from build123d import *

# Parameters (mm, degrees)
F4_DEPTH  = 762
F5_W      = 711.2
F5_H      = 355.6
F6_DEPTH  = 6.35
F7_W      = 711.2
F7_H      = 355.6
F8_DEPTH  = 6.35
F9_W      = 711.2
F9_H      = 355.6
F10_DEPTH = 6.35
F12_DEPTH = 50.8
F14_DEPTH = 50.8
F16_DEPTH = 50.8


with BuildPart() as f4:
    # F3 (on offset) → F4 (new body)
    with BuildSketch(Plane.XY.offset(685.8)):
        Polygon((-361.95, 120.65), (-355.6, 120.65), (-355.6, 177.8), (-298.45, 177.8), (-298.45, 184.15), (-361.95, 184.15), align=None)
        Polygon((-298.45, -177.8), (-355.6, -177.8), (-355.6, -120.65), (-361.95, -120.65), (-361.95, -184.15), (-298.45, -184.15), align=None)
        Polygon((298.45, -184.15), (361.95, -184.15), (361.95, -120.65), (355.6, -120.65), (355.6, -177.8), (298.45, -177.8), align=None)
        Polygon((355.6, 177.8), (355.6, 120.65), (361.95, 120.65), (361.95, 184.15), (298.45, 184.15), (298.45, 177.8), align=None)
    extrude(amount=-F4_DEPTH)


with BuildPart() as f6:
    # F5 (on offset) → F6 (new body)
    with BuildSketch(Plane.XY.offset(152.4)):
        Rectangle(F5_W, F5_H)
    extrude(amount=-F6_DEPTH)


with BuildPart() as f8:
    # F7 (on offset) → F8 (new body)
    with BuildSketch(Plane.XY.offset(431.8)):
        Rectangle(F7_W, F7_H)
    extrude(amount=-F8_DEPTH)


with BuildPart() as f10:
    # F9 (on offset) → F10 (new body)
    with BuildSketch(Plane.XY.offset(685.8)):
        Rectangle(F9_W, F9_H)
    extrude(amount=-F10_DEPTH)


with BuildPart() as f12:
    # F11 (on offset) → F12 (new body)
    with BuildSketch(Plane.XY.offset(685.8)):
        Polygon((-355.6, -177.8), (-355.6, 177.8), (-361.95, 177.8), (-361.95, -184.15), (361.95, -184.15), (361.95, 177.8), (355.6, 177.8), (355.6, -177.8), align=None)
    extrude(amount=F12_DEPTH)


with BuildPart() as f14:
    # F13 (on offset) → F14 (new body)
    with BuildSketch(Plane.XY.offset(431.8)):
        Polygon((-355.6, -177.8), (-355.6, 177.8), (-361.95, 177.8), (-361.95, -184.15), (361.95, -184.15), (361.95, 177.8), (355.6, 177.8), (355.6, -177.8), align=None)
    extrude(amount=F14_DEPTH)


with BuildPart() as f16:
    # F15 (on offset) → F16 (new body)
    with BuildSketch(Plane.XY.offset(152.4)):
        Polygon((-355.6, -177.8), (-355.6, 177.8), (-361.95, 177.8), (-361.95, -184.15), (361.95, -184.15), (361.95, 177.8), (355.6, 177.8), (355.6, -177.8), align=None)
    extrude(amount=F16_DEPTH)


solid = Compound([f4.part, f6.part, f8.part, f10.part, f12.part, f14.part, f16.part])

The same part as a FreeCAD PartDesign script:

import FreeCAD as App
import Part
import Sketcher

V = App.Vector
Q = App.Units.Quantity

doc = App.newDocument("Part")
body = doc.addObject("PartDesign::Body", "Body")
body.AllowCompound = True

# Sketch on XY plane
sketch1 = body.newObject("Sketcher::SketchObject", "Sketch")
sketch1.AttachmentSupport = (doc.getObject("XY_Plane"), [""])
sketch1.MapMode = "FlatFace"
sketch1.AttachmentOffset = App.Placement(V(0, 0, 27 * 25.4), App.Rotation())
sketch1.addGeometry([
    Part.LineSegment(V(-362, 121, 0), V(-356, 121, 0)),  # 0
    Part.LineSegment(V(-356, 121, 0), V(-356, 178, 0)),  # 1
    Part.LineSegment(V(-356, 178, 0), V(-298, 178, 0)),  # 2
    Part.LineSegment(V(-298, 178, 0), V(-298, 184, 0)),  # 3
    Part.LineSegment(V(-298, 184, 0), V(-362, 184, 0)),  # 4
    Part.LineSegment(V(-362, 184, 0), V(-362, 121, 0)),  # 5
    Part.LineSegment(V(-298, -178, 0), V(-356, -178, 0)),  # 6
    Part.LineSegment(V(-356, -178, 0), V(-356, -121, 0)),  # 7
    Part.LineSegment(V(-356, -121, 0), V(-362, -121, 0)),  # 8
    Part.LineSegment(V(-362, -121, 0), V(-362, -184, 0)),  # 9
    Part.LineSegment(V(-362, -184, 0), V(-298, -184, 0)),  # 10
    Part.LineSegment(V(-298, -184, 0), V(-298, -178, 0)),  # 11
    Part.LineSegment(V(298, -184, 0), V(362, -184, 0)),  # 12
    Part.LineSegment(V(362, -184, 0), V(362, -121, 0)),  # 13
    Part.LineSegment(V(362, -121, 0), V(356, -121, 0)),  # 14
    Part.LineSegment(V(356, -121, 0), V(356, -178, 0)),  # 15
    Part.LineSegment(V(356, -178, 0), V(298, -178, 0)),  # 16
    Part.LineSegment(V(298, -178, 0), V(298, -184, 0)),  # 17
    Part.LineSegment(V(356, 178, 0), V(356, 121, 0)),  # 18
    Part.LineSegment(V(356, 121, 0), V(362, 121, 0)),  # 19
    Part.LineSegment(V(362, 121, 0), V(362, 184, 0)),  # 20
    Part.LineSegment(V(362, 184, 0), V(298, 184, 0)),  # 21
    Part.LineSegment(V(298, 184, 0), V(298, 178, 0)),  # 22
    Part.LineSegment(V(298, 178, 0), V(356, 178, 0)),  # 23
], False)
sketch1.addConstraint([
    Sketcher.Constraint("Coincident", 0, 2, 1, 1),
    Sketcher.Constraint("Coincident", 1, 2, 2, 1),
    Sketcher.Constraint("Coincident", 2, 2, 3, 1),
    Sketcher.Constraint("Coincident", 3, 2, 4, 1),
    Sketcher.Constraint("Coincident", 4, 2, 5, 1),
    Sketcher.Constraint("Coincident", 5, 2, 0, 1),
    Sketcher.Constraint("Coincident", 6, 2, 7, 1),
    Sketcher.Constraint("Coincident", 7, 2, 8, 1),
    Sketcher.Constraint("Coincident", 8, 2, 9, 1),
    Sketcher.Constraint("Coincident", 9, 2, 10, 1),
    Sketcher.Constraint("Coincident", 10, 2, 11, 1),
    Sketcher.Constraint("Coincident", 11, 2, 6, 1),
    Sketcher.Constraint("Coincident", 12, 2, 13, 1),
    Sketcher.Constraint("Coincident", 13, 2, 14, 1),
    Sketcher.Constraint("Coincident", 14, 2, 15, 1),
    Sketcher.Constraint("Coincident", 15, 2, 16, 1),
    Sketcher.Constraint("Coincident", 16, 2, 17, 1),
    Sketcher.Constraint("Coincident", 17, 2, 12, 1),
    Sketcher.Constraint("Coincident", 18, 2, 19, 1),
    Sketcher.Constraint("Coincident", 19, 2, 20, 1),
    Sketcher.Constraint("Coincident", 20, 2, 21, 1),
    Sketcher.Constraint("Coincident", 21, 2, 22, 1),
    Sketcher.Constraint("Coincident", 22, 2, 23, 1),
    Sketcher.Constraint("Coincident", 23, 2, 18, 1),
    Sketcher.Constraint("Horizontal", 0),
    Sketcher.Constraint("Vertical", 1),
    Sketcher.Constraint("Horizontal", 2),
    Sketcher.Constraint("Vertical", 3),
    Sketcher.Constraint("Horizontal", 4),
    Sketcher.Constraint("Vertical", 5),
    Sketcher.Constraint("Horizontal", 6),
    Sketcher.Constraint("Vertical", 7),
    Sketcher.Constraint("Horizontal", 8),
    Sketcher.Constraint("Vertical", 9),
    Sketcher.Constraint("Horizontal", 10),
    Sketcher.Constraint("Vertical", 11),
    Sketcher.Constraint("Horizontal", 12),
    Sketcher.Constraint("Vertical", 13),
    Sketcher.Constraint("Horizontal", 14),
    Sketcher.Constraint("Vertical", 15),
    Sketcher.Constraint("Horizontal", 16),
    Sketcher.Constraint("Vertical", 17),
    Sketcher.Constraint("Vertical", 18),
    Sketcher.Constraint("Horizontal", 19),
    Sketcher.Constraint("Vertical", 20),
    Sketcher.Constraint("Horizontal", 21),
    Sketcher.Constraint("Vertical", 22),
    Sketcher.Constraint("Horizontal", 23),
    Sketcher.Constraint("Symmetric", 4, 2, 12, 2, -1, 1),
    Sketcher.Constraint("Symmetric", 0, 2, 14, 2, -1, 1),
    Sketcher.Constraint("Symmetric", 2, 2, 16, 2, -1, 1),
    Sketcher.Constraint("Symmetric", 7, 2, 18, 2, -1, 1),
    Sketcher.Constraint("Symmetric", 9, 2, 20, 2, -1, 1),
    Sketcher.Constraint("Symmetric", 11, 2, 22, 2, -1, 1),
    Sketcher.Constraint("Symmetric", 9, 2, 12, 2, -2),
    Sketcher.Constraint("Symmetric", 7, 2, 14, 2, -2),
    Sketcher.Constraint("Symmetric", 11, 2, 16, 2, -2),
    Sketcher.Constraint("Equal", 23, 1),
    Sketcher.Constraint("Equal", 19, 3),
    Sketcher.Constraint("DistanceX", 4, 2, 4, 1, Q("2.5 in")),
    Sketcher.Constraint("DistanceX", 0, 2, -1, 1, Q("14 in")),
    Sketcher.Constraint("DistanceY", -1, 1, 1, 2, Q("7 in")),
    Sketcher.Constraint("DistanceY", 9, 2, 5, 2, Q("12 in")),
])
pad1 = body.newObject("PartDesign::Pad", "Pad")
pad1.Profile = sketch1
pad1.Length = Q("30 in")
pad1.Reversed = True
body2 = doc.addObject("PartDesign::Body", "Body001")

# Sketch on XY plane
sketch2 = body2.newObject("Sketcher::SketchObject", "Sketch001")
sketch2.AttachmentSupport = (doc.getObject("XY_Plane001"), [""])
sketch2.MapMode = "FlatFace"
sketch2.AttachmentOffset = App.Placement(V(0, 0, 6 * 25.4), App.Rotation())
sketch2.addGeometry([
    Part.LineSegment(V(-356, 178, 0), V(-356, -178, 0)),
    Part.LineSegment(V(-356, -178, 0), V(356, -178, 0)),
    Part.LineSegment(V(356, -178, 0), V(356, 178, 0)),
    Part.LineSegment(V(356, 178, 0), V(-356, 178, 0)),
], False)
sketch2.addConstraint([
    Sketcher.Constraint("Coincident", 0, 2, 1, 1),
    Sketcher.Constraint("Coincident", 1, 2, 2, 1),
    Sketcher.Constraint("Coincident", 2, 2, 3, 1),
    Sketcher.Constraint("Coincident", 3, 2, 0, 1),
    Sketcher.Constraint("Vertical", 0),
    Sketcher.Constraint("Horizontal", 1),
    Sketcher.Constraint("Vertical", 2),
    Sketcher.Constraint("Horizontal", 3),
    Sketcher.Constraint("Symmetric", 0, 2, 2, 2, -1, 1),
    Sketcher.Constraint("DistanceX", 1, 1, 1, 2, Q("28 in")),
    Sketcher.Constraint("DistanceY", 0, 2, 0, 1, Q("14 in")),
])
pad2 = body2.newObject("PartDesign::Pad", "Pad001")
pad2.Profile = sketch2
pad2.Length = Q("0.25 in")
pad2.Reversed = True
body3 = doc.addObject("PartDesign::Body", "Body002")

# Sketch on XY plane
sketch3 = body3.newObject("Sketcher::SketchObject", "Sketch002")
sketch3.AttachmentSupport = (doc.getObject("XY_Plane002"), [""])
sketch3.MapMode = "FlatFace"
sketch3.AttachmentOffset = App.Placement(V(0, 0, 17 * 25.4), App.Rotation())
sketch3.addGeometry([
    Part.LineSegment(V(-356, 178, 0), V(-356, -178, 0)),
    Part.LineSegment(V(-356, -178, 0), V(356, -178, 0)),
    Part.LineSegment(V(356, -178, 0), V(356, 178, 0)),
    Part.LineSegment(V(356, 178, 0), V(-356, 178, 0)),
], False)
sketch3.addConstraint([
    Sketcher.Constraint("Coincident", 0, 2, 1, 1),
    Sketcher.Constraint("Coincident", 1, 2, 2, 1),
    Sketcher.Constraint("Coincident", 2, 2, 3, 1),
    Sketcher.Constraint("Coincident", 3, 2, 0, 1),
    Sketcher.Constraint("Vertical", 0),
    Sketcher.Constraint("Horizontal", 1),
    Sketcher.Constraint("Vertical", 2),
    Sketcher.Constraint("Horizontal", 3),
    Sketcher.Constraint("Symmetric", 0, 2, 2, 2, -1, 1),
    Sketcher.Constraint("DistanceX", 1, 1, 1, 2, Q("28 in")),
    Sketcher.Constraint("DistanceY", 0, 2, 0, 1, Q("14 in")),
])
pad3 = body3.newObject("PartDesign::Pad", "Pad002")
pad3.Profile = sketch3
pad3.Length = Q("0.25 in")
pad3.Reversed = True
body4 = doc.addObject("PartDesign::Body", "Body003")

# Sketch on XY plane
sketch4 = body4.newObject("Sketcher::SketchObject", "Sketch003")
sketch4.AttachmentSupport = (doc.getObject("XY_Plane003"), [""])
sketch4.MapMode = "FlatFace"
sketch4.AttachmentOffset = App.Placement(V(0, 0, 27 * 25.4), App.Rotation())
sketch4.addGeometry([
    Part.LineSegment(V(-356, 178, 0), V(-356, -178, 0)),
    Part.LineSegment(V(-356, -178, 0), V(356, -178, 0)),
    Part.LineSegment(V(356, -178, 0), V(356, 178, 0)),
    Part.LineSegment(V(356, 178, 0), V(-356, 178, 0)),
], False)
sketch4.addConstraint([
    Sketcher.Constraint("Coincident", 0, 2, 1, 1),
    Sketcher.Constraint("Coincident", 1, 2, 2, 1),
    Sketcher.Constraint("Coincident", 2, 2, 3, 1),
    Sketcher.Constraint("Coincident", 3, 2, 0, 1),
    Sketcher.Constraint("Vertical", 0),
    Sketcher.Constraint("Horizontal", 1),
    Sketcher.Constraint("Vertical", 2),
    Sketcher.Constraint("Horizontal", 3),
    Sketcher.Constraint("Symmetric", 0, 2, 2, 2, -1, 1),
    Sketcher.Constraint("DistanceX", 1, 1, 1, 2, Q("28 in")),
    Sketcher.Constraint("DistanceY", 0, 2, 0, 1, Q("14 in")),
])
pad4 = body4.newObject("PartDesign::Pad", "Pad003")
pad4.Profile = sketch4
pad4.Length = Q("0.25 in")
pad4.Reversed = True
body5 = doc.addObject("PartDesign::Body", "Body004")

# Sketch on XY plane
sketch5 = body5.newObject("Sketcher::SketchObject", "Sketch004")
sketch5.AttachmentSupport = (doc.getObject("XY_Plane004"), [""])
sketch5.MapMode = "FlatFace"
sketch5.AttachmentOffset = App.Placement(V(0, 0, 27 * 25.4), App.Rotation())
sketch5.addGeometry([
    Part.LineSegment(V(-356, -178, 0), V(-356, 178, 0)),  # 0
    Part.LineSegment(V(-356, 178, 0), V(-362, 178, 0)),  # 1
    Part.LineSegment(V(-362, 178, 0), V(-362, -184, 0)),  # 2
    Part.LineSegment(V(-362, -184, 0), V(362, -184, 0)),  # 3
    Part.LineSegment(V(362, -184, 0), V(362, 178, 0)),  # 4
    Part.LineSegment(V(362, 178, 0), V(356, 178, 0)),  # 5
    Part.LineSegment(V(356, 178, 0), V(356, -178, 0)),  # 6
    Part.LineSegment(V(356, -178, 0), V(-356, -178, 0)),  # 7
], False)
sketch5.addConstraint([
    Sketcher.Constraint("Coincident", 0, 2, 1, 1),
    Sketcher.Constraint("Coincident", 1, 2, 2, 1),
    Sketcher.Constraint("Coincident", 2, 2, 3, 1),
    Sketcher.Constraint("Coincident", 3, 2, 4, 1),
    Sketcher.Constraint("Coincident", 4, 2, 5, 1),
    Sketcher.Constraint("Coincident", 5, 2, 6, 1),
    Sketcher.Constraint("Coincident", 6, 2, 7, 1),
    Sketcher.Constraint("Coincident", 7, 2, 0, 1),
    Sketcher.Constraint("Vertical", 0),
    Sketcher.Constraint("Horizontal", 1),
    Sketcher.Constraint("Vertical", 2),
    Sketcher.Constraint("Horizontal", 3),
    Sketcher.Constraint("Vertical", 4),
    Sketcher.Constraint("Horizontal", 5),
    Sketcher.Constraint("Vertical", 6),
    Sketcher.Constraint("Horizontal", 7),
    Sketcher.Constraint("Symmetric", 0, 2, 6, 2, -1, 1),
    Sketcher.Constraint("Symmetric", 1, 2, 4, 2, -2),
    Sketcher.Constraint("DistanceX", 7, 2, 7, 1, Q("28 in")),
    Sketcher.Constraint("DistanceY", 0, 1, 0, 2, Q("14 in")),
    Sketcher.Constraint("DistanceX", 3, 1, 3, 2, Q("28.5 in")),
    Sketcher.Constraint("DistanceY", 2, 2, 2, 1, Q("14.25 in")),
])
pad5 = body5.newObject("PartDesign::Pad", "Pad004")
pad5.Profile = sketch5
pad5.Length = Q("2 in")
body6 = doc.addObject("PartDesign::Body", "Body005")

# Sketch on XY plane
sketch6 = body6.newObject("Sketcher::SketchObject", "Sketch005")
sketch6.AttachmentSupport = (doc.getObject("XY_Plane005"), [""])
sketch6.MapMode = "FlatFace"
sketch6.AttachmentOffset = App.Placement(V(0, 0, 17 * 25.4), App.Rotation())
sketch6.addGeometry([
    Part.LineSegment(V(-356, -178, 0), V(-356, 178, 0)),  # 0
    Part.LineSegment(V(-356, 178, 0), V(-362, 178, 0)),  # 1
    Part.LineSegment(V(-362, 178, 0), V(-362, -184, 0)),  # 2
    Part.LineSegment(V(-362, -184, 0), V(362, -184, 0)),  # 3
    Part.LineSegment(V(362, -184, 0), V(362, 178, 0)),  # 4
    Part.LineSegment(V(362, 178, 0), V(356, 178, 0)),  # 5
    Part.LineSegment(V(356, 178, 0), V(356, -178, 0)),  # 6
    Part.LineSegment(V(356, -178, 0), V(-356, -178, 0)),  # 7
], False)
sketch6.addConstraint([
    Sketcher.Constraint("Coincident", 0, 2, 1, 1),
    Sketcher.Constraint("Coincident", 1, 2, 2, 1),
    Sketcher.Constraint("Coincident", 2, 2, 3, 1),
    Sketcher.Constraint("Coincident", 3, 2, 4, 1),
    Sketcher.Constraint("Coincident", 4, 2, 5, 1),
    Sketcher.Constraint("Coincident", 5, 2, 6, 1),
    Sketcher.Constraint("Coincident", 6, 2, 7, 1),
    Sketcher.Constraint("Coincident", 7, 2, 0, 1),
    Sketcher.Constraint("Vertical", 0),
    Sketcher.Constraint("Horizontal", 1),
    Sketcher.Constraint("Vertical", 2),
    Sketcher.Constraint("Horizontal", 3),
    Sketcher.Constraint("Vertical", 4),
    Sketcher.Constraint("Horizontal", 5),
    Sketcher.Constraint("Vertical", 6),
    Sketcher.Constraint("Horizontal", 7),
    Sketcher.Constraint("Symmetric", 0, 2, 6, 2, -1, 1),
    Sketcher.Constraint("Symmetric", 1, 2, 4, 2, -2),
    Sketcher.Constraint("DistanceX", 7, 2, 7, 1, Q("28 in")),
    Sketcher.Constraint("DistanceY", 0, 1, 0, 2, Q("14 in")),
    Sketcher.Constraint("DistanceX", 3, 1, 3, 2, Q("28.5 in")),
    Sketcher.Constraint("DistanceY", 2, 2, 2, 1, Q("14.25 in")),
])
pad6 = body6.newObject("PartDesign::Pad", "Pad005")
pad6.Profile = sketch6
pad6.Length = Q("2 in")
body7 = doc.addObject("PartDesign::Body", "Body006")

# Sketch on XY plane
sketch7 = body7.newObject("Sketcher::SketchObject", "Sketch006")
sketch7.AttachmentSupport = (doc.getObject("XY_Plane006"), [""])
sketch7.MapMode = "FlatFace"
sketch7.AttachmentOffset = App.Placement(V(0, 0, 6 * 25.4), App.Rotation())
sketch7.addGeometry([
    Part.LineSegment(V(-356, -178, 0), V(-356, 178, 0)),  # 0
    Part.LineSegment(V(-356, 178, 0), V(-362, 178, 0)),  # 1
    Part.LineSegment(V(-362, 178, 0), V(-362, -184, 0)),  # 2
    Part.LineSegment(V(-362, -184, 0), V(362, -184, 0)),  # 3
    Part.LineSegment(V(362, -184, 0), V(362, 178, 0)),  # 4
    Part.LineSegment(V(362, 178, 0), V(356, 178, 0)),  # 5
    Part.LineSegment(V(356, 178, 0), V(356, -178, 0)),  # 6
    Part.LineSegment(V(356, -178, 0), V(-356, -178, 0)),  # 7
], False)
sketch7.addConstraint([
    Sketcher.Constraint("Coincident", 0, 2, 1, 1),
    Sketcher.Constraint("Coincident", 1, 2, 2, 1),
    Sketcher.Constraint("Coincident", 2, 2, 3, 1),
    Sketcher.Constraint("Coincident", 3, 2, 4, 1),
    Sketcher.Constraint("Coincident", 4, 2, 5, 1),
    Sketcher.Constraint("Coincident", 5, 2, 6, 1),
    Sketcher.Constraint("Coincident", 6, 2, 7, 1),
    Sketcher.Constraint("Coincident", 7, 2, 0, 1),
    Sketcher.Constraint("Vertical", 0),
    Sketcher.Constraint("Horizontal", 1),
    Sketcher.Constraint("Vertical", 2),
    Sketcher.Constraint("Horizontal", 3),
    Sketcher.Constraint("Vertical", 4),
    Sketcher.Constraint("Horizontal", 5),
    Sketcher.Constraint("Vertical", 6),
    Sketcher.Constraint("Horizontal", 7),
    Sketcher.Constraint("Symmetric", 0, 2, 6, 2, -1, 1),
    Sketcher.Constraint("Symmetric", 1, 2, 4, 2, -2),
    Sketcher.Constraint("DistanceX", 7, 2, 7, 1, Q("28 in")),
    Sketcher.Constraint("DistanceY", 0, 1, 0, 2, Q("14 in")),
    Sketcher.Constraint("DistanceX", 3, 1, 3, 2, Q("28.5 in")),
    Sketcher.Constraint("DistanceY", 2, 2, 2, 1, Q("14.25 in")),
])
pad7 = body7.newObject("PartDesign::Pad", "Pad006")
pad7.Profile = sketch7
pad7.Length = Q("2 in")

doc.recompute()
